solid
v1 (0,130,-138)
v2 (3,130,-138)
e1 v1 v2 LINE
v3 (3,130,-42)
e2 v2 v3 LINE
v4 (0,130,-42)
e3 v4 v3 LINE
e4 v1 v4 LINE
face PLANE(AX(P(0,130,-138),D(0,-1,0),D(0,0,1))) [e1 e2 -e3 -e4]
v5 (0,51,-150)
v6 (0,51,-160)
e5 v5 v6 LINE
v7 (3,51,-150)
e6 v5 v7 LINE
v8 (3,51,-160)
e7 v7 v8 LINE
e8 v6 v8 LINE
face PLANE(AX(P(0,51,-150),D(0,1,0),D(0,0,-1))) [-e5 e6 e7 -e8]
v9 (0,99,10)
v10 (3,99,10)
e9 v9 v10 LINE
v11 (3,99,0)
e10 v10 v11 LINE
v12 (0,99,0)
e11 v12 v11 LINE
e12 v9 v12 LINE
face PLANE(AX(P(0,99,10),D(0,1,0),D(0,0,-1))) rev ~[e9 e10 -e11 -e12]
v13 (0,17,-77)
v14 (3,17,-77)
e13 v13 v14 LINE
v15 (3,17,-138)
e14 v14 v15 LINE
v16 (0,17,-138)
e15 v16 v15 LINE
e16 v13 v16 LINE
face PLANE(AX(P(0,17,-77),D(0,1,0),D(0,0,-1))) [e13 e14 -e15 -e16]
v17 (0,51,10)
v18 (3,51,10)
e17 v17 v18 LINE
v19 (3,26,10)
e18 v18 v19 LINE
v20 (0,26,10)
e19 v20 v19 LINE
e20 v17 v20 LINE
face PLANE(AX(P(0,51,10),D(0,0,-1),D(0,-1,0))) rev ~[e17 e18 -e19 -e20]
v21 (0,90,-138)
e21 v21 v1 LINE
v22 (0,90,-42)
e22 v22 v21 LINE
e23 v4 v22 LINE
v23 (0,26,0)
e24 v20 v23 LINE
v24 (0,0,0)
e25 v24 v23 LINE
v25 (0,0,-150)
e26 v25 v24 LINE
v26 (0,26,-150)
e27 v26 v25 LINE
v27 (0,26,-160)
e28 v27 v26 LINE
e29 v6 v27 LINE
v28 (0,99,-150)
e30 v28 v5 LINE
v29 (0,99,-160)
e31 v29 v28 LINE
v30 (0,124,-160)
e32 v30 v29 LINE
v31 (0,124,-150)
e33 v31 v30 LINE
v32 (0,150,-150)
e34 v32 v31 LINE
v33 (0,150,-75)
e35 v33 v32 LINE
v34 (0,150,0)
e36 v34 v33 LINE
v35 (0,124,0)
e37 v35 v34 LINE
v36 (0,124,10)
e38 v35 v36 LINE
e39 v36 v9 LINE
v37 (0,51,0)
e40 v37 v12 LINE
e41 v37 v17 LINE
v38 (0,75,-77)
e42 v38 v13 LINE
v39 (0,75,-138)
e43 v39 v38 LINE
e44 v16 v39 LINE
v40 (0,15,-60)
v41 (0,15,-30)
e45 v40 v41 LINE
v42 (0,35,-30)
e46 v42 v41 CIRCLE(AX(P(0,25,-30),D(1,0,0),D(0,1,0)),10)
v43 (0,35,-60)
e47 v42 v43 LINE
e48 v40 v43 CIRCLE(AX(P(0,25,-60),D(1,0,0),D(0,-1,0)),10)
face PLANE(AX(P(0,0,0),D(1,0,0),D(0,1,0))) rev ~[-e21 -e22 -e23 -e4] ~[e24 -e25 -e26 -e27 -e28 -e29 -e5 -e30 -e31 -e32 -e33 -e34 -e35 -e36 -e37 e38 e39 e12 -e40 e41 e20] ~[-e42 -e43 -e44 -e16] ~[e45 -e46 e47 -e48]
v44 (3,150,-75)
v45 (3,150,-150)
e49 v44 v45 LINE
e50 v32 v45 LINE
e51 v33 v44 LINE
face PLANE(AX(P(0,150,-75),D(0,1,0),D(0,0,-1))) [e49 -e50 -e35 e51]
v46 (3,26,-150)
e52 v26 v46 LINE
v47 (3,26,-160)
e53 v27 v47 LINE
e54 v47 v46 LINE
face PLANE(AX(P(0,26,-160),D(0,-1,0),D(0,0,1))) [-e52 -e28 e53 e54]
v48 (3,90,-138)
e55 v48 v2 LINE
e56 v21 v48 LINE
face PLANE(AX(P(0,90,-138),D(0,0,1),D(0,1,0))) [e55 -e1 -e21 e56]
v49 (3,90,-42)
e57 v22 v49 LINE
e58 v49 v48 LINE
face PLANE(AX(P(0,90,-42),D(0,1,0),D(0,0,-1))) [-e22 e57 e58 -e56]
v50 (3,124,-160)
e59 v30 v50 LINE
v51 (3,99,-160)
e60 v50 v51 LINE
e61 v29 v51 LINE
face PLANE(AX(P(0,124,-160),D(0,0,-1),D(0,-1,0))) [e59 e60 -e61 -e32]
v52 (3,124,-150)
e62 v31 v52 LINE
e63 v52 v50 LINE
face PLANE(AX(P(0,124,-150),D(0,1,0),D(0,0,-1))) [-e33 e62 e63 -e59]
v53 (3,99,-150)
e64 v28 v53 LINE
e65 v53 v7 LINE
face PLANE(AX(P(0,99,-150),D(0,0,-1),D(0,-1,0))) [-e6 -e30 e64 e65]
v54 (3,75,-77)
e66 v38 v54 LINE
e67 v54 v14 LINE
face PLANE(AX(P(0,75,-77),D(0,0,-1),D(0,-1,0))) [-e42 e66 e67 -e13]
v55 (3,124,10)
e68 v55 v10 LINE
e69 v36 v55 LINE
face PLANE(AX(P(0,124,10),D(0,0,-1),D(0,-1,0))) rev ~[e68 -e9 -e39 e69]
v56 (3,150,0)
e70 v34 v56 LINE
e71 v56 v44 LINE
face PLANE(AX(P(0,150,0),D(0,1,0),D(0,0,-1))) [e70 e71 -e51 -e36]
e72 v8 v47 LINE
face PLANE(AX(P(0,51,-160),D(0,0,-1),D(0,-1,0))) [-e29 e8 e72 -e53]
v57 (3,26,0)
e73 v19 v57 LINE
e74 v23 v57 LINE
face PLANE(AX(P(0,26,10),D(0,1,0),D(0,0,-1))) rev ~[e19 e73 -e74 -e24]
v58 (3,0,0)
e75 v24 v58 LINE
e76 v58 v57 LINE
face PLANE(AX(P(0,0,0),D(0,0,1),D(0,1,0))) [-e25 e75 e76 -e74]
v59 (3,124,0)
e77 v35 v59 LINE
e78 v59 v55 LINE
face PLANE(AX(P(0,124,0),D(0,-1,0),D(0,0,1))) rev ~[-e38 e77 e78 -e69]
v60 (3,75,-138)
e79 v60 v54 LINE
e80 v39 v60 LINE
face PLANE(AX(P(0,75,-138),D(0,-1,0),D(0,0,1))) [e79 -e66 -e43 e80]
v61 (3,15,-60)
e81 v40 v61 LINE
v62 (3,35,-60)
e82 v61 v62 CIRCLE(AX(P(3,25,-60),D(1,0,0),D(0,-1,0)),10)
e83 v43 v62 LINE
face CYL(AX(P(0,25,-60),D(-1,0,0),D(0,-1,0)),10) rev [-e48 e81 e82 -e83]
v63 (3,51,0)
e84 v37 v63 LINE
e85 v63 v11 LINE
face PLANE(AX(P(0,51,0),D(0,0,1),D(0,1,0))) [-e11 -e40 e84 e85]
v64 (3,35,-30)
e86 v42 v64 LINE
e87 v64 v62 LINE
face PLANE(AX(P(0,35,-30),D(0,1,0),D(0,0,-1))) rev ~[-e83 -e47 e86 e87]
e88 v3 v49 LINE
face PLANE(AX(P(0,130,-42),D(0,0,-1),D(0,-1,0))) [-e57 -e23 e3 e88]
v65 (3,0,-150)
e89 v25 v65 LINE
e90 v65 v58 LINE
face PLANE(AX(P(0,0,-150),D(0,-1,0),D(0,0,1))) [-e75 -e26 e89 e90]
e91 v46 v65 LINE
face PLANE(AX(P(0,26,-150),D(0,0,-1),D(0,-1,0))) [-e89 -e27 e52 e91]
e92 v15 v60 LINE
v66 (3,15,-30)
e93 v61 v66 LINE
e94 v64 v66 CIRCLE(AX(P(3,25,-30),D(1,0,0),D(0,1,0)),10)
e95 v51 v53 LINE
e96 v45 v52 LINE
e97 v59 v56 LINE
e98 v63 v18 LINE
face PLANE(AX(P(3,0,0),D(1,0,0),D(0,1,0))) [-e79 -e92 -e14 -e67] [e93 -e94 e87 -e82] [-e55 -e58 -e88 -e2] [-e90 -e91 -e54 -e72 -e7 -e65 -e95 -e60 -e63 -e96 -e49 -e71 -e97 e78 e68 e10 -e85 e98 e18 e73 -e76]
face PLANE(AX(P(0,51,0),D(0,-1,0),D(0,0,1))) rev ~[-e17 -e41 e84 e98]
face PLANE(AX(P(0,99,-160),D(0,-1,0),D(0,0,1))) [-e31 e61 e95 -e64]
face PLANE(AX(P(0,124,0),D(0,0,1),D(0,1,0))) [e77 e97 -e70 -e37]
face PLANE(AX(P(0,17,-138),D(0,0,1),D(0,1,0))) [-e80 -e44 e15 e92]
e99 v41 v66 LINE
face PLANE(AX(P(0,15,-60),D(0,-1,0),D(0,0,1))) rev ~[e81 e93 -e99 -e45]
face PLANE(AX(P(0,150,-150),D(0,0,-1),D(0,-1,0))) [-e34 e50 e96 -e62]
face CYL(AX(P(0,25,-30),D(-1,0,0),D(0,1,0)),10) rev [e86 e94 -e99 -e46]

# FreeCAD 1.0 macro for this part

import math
import FreeCAD as App
import Part
import Sketcher
from FreeCAD import Vector


def add_polygon(sketch, points):
    """Adds a closed chain of lines whose ends are joined by coincident constraints."""
    first, n = sketch.GeometryCount, len(points)
    for a, b in zip(points, points[1:] + points[:1]):
        sketch.addGeometry(Part.LineSegment(App.Vector(*a, 0), App.Vector(*b, 0)), False)
    for i in range(n):
        sketch.addConstraint(Sketcher.Constraint("Coincident", first + i, 2, first + (i + 1) % n, 1))

doc = App.newDocument("Part")
params = doc.addObject("Spreadsheet::Sheet", "Params")
for row, (alias, value) in enumerate([
    ("sketch1_radius", "10 mm"),
    ("sketch1_width", "26 mm"),
    ("sketch1_width2", "25 mm"),
    ("sketch1_width3", "58 mm"),
    ("sketch1_width4", "40 mm"),
    ("pad1_length", "3 mm"),
], start=1):
    params.set(f"A{row}", alias)
    params.set(f"B{row}", "=" + value)
    params.setAlias(f"B{row}", alias)

body = doc.addObject("PartDesign::Body", "Body")

# Sketch on YZ plane
sketch1 = doc.addObject("Sketcher::SketchObject", "Sketch")
body.addObject(sketch1)
sketch1.AttachmentSupport = (doc.YZ_Plane, [""])
sketch1.MapMode = "FlatFace"
add_polygon(sketch1, [(150, -150), (150, 0), (124, 0), (124, 10), (99, 10), (99, 0), (51, 0), (51, 10), (26, 10), (26, 0), (0, 0), (0, -150), (26, -150), (26, -160), (51, -160), (51, -150), (99, -150), (99, -160), (124, -160), (124, -150)])  # lines 0-19
add_polygon(sketch1, [(17, -77), (75, -77), (75, -138), (17, -138)])  # lines 20-23
add_polygon(sketch1, [(90, -42), (130, -42), (130, -138), (90, -138)])  # lines 24-27
sketch1.addGeometry(Part.ArcOfCircle(Part.Circle(Vector(25, -30, 0), Vector(0, 0, 1), 10), math.radians(0), math.radians(180)), False)  # 28
sketch1.addGeometry(Part.LineSegment(Vector(35, -30, 0), Vector(35, -60, 0)), False)  # 29
sketch1.addGeometry(Part.ArcOfCircle(Part.Circle(Vector(25, -60, 0), Vector(0, 0, 1), 10), math.radians(180), math.radians(360)), False)  # 30
sketch1.addGeometry(Part.LineSegment(Vector(15, -60, 0), Vector(15, -30, 0)), False)  # 31
sketch1.addConstraint(Sketcher.Constraint("Tangent", 28, 1, 29, 1))
sketch1.addConstraint(Sketcher.Constraint("Tangent", 29, 2, 30, 2))
sketch1.addConstraint(Sketcher.Constraint("Tangent", 30, 1, 31, 1))
sketch1.addConstraint(Sketcher.Constraint("Tangent", 31, 2, 28, 2))
sketch1.addConstraint(Sketcher.Constraint("Vertical", 0))
sketch1.addConstraint(Sketcher.Constraint("Horizontal", 1))
sketch1.addConstraint(Sketcher.Constraint("Vertical", 2))
sketch1.addConstraint(Sketcher.Constraint("Horizontal", 3))
sketch1.addConstraint(Sketcher.Constraint("Vertical", 4))
sketch1.addConstraint(Sketcher.Constraint("Horizontal", 5))
sketch1.addConstraint(Sketcher.Constraint("Vertical", 6))
sketch1.addConstraint(Sketcher.Constraint("Horizontal", 7))
sketch1.addConstraint(Sketcher.Constraint("Vertical", 8))
sketch1.addConstraint(Sketcher.Constraint("Horizontal", 9))
sketch1.addConstraint(Sketcher.Constraint("Vertical", 10))
sketch1.addConstraint(Sketcher.Constraint("Horizontal", 11))
sketch1.addConstraint(Sketcher.Constraint("Vertical", 12))
sketch1.addConstraint(Sketcher.Constraint("Horizontal", 13))
sketch1.addConstraint(Sketcher.Constraint("Vertical", 14))
sketch1.addConstraint(Sketcher.Constraint("Horizontal", 15))
sketch1.addConstraint(Sketcher.Constraint("Vertical", 16))
sketch1.addConstraint(Sketcher.Constraint("Horizontal", 17))
sketch1.addConstraint(Sketcher.Constraint("Vertical", 18))
sketch1.addConstraint(Sketcher.Constraint("Horizontal", 19))
sketch1.addConstraint(Sketcher.Constraint("Horizontal", 20))
sketch1.addConstraint(Sketcher.Constraint("Vertical", 21))
sketch1.addConstraint(Sketcher.Constraint("Horizontal", 22))
sketch1.addConstraint(Sketcher.Constraint("Vertical", 23))
sketch1.addConstraint(Sketcher.Constraint("Horizontal", 24))
sketch1.addConstraint(Sketcher.Constraint("Vertical", 25))
sketch1.addConstraint(Sketcher.Constraint("Horizontal", 26))
sketch1.addConstraint(Sketcher.Constraint("Vertical", 27))
sketch1.addConstraint(Sketcher.Constraint("Vertical", 29))
sketch1.addConstraint(Sketcher.Constraint("Vertical", 31))
sketch1.addConstraint(Sketcher.Constraint("Coincident", 9, 2, -1, 1))
sketch1.addConstraint(Sketcher.Constraint("PointOnObject", 0, 2, -1))
sketch1.addConstraint(Sketcher.Constraint("PointOnObject", 4, 2, -1))
sketch1.addConstraint(Sketcher.Constraint("Horizontal", 3, 2, 6, 2))
sketch1.addConstraint(Sketcher.Constraint("Horizontal", 11, 2, 14, 2))
sketch1.addConstraint(Sketcher.Constraint("Horizontal", 13, 2, 16, 2))
sketch1.addConstraint(Sketcher.Constraint("Horizontal", 15, 2, 18, 2))
sketch1.addConstraint(Sketcher.Constraint("Horizontal", 22, 2, 25, 2))
sketch1.addConstraint(Sketcher.Constraint("Vertical", 8, 2, 11, 2))
sketch1.addConstraint(Sketcher.Constraint("Vertical", 6, 2, 13, 2))
sketch1.addConstraint(Sketcher.Constraint("Vertical", 4, 2, 15, 2))
sketch1.addConstraint(Sketcher.Constraint("Vertical", 2, 2, 17, 2))
sketch1.addConstraint(Sketcher.Constraint("Equal", 3, 7))
sketch1.addConstraint(Sketcher.Constraint("Equal", 1, 9))
sketch1.addConstraint(Sketcher.Constraint("Equal", 8, 12))
sketch1.addConstraint(Sketcher.Constraint("Radius", 28, 10.0))
sketch1.addConstraint(Sketcher.Constraint("DistanceX", 1, 2, 1, 1, 26.0))
sketch1.addConstraint(Sketcher.Constraint("DistanceX", 3, 2, 3, 1, 25.0))
sketch1.addConstraint(Sketcher.Constraint("DistanceX", 20, 1, 20, 2, 58.0))
sketch1.addConstraint(Sketcher.Constraint("DistanceX", 24, 1, 24, 2, 40.0))
sketch1.addConstraint(Sketcher.Constraint("DistanceY", 0, 1, 0, 2, 150.0))
sketch1.addConstraint(Sketcher.Constraint("DistanceY", 2, 1, 2, 2, 10.0))
sketch1.addConstraint(Sketcher.Constraint("DistanceY", 21, 2, 21, 1, 61.0))
sketch1.addConstraint(Sketcher.Constraint("DistanceY", 25, 2, 25, 1, 96.0))
sketch1.addConstraint(Sketcher.Constraint("DistanceY", 29, 2, 29, 1, 30.0))
sketch1.addConstraint(Sketcher.Constraint("DistanceX", -1, 1, 28, 3, 25.0))
sketch1.addConstraint(Sketcher.Constraint("DistanceY", 28, 3, -1, 1, 30.0))
sketch1.addConstraint(Sketcher.Constraint("DistanceX", -1, 1, 0, 2, 150.0))
sketch1.addConstraint(Sketcher.Constraint("DistanceX", -1, 1, 20, 2, 75.0))
sketch1.addConstraint(Sketcher.Constraint("DistanceX", -1, 1, 26, 2, 90.0))
sketch1.addConstraint(Sketcher.Constraint("DistanceY", 20, 2, -1, 1, 77.0))
sketch1.setExpression("Constraints[77]", "Params.sketch1_radius")
sketch1.setExpression("Constraints[78]", "Params.sketch1_width")
sketch1.setExpression("Constraints[79]", "Params.sketch1_width2")
sketch1.setExpression("Constraints[80]", "Params.sketch1_width3")
sketch1.setExpression("Constraints[81]", "Params.sketch1_width4")
pad1 = doc.addObject("PartDesign::Pad", "Pad")
body.addObject(pad1)
pad1.Profile = sketch1
pad1.setExpression("Length", "Params.pad1_length")

doc.recompute()
